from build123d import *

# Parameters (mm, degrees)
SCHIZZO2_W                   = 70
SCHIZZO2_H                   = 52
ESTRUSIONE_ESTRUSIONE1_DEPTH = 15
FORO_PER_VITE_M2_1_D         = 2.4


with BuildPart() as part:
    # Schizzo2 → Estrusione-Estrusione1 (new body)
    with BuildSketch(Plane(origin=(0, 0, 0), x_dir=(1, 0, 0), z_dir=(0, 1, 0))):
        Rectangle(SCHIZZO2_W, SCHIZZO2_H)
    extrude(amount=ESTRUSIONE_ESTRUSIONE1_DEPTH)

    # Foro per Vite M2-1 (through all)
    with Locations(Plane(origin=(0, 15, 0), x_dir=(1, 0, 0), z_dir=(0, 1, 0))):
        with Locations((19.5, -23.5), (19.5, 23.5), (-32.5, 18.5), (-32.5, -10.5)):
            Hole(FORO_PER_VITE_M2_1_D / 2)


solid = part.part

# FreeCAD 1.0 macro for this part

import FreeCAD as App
import Part
import Sketcher
Q = App.Units.Quantity


def add_polygon(sketch, points):
    """Adds a closed chain of lines whose ends are joined by coincident constraints."""
    first, n = sketch.GeometryCount, len(points)
    for a, b in zip(points, points[1:] + points[:1]):
        sketch.addGeometry(Part.LineSegment(App.Vector(*a, 0), App.Vector(*b, 0)), False)
    for i in range(n):
        sketch.addConstraint(Sketcher.Constraint("Coincident", first + i, 2, first + (i + 1) % n, 1))

doc = App.newDocument("Part")
body = doc.addObject("PartDesign::Body", "Body")

sketch1 = body.newObject("Sketcher::SketchObject", "Sketch")
sketch1.AttachmentSupport = (doc.getObject("XZ_Plane"), [""])
sketch1.MapMode = "FlatFace"
add_polygon(sketch1, [(-35, -26), (-35, 26), (35, 26), (35, -26)])
sketch1.addConstraint([
    Sketcher.Constraint("Vertical", 0),
    Sketcher.Constraint("Horizontal", 1),
    Sketcher.Constraint("Vertical", 2),
    Sketcher.Constraint("Horizontal", 3),
    Sketcher.Constraint("Symmetric", 0, 2, 2, 2, -1, 1),
    Sketcher.Constraint("DistanceX", 1, 1, 1, 2, Q("70 mm")),
    Sketcher.Constraint("DistanceY", 0, 1, 0, 2, Q("52 mm")),
])
pad1 = body.newObject("PartDesign::Pad", "Pad")
pad1.Profile = sketch1
pad1.Length = 15
pad1.Reversed = True

sketch2 = body.newObject("Sketcher::SketchObject", "Sketch001")
sketch2.AttachmentSupport = (doc.getObject("XZ_Plane"), [""])
sketch2.MapMode = "FlatFace"
sketch2.AttachmentOffset = App.Placement(App.Vector(0, 0, -15), App.Rotation())
sketch2.addGeometry([
    Part.Circle(App.Vector(19.5, 23.5, 0), App.Vector(0, 0, 1), 1.2),
    Part.Circle(App.Vector(19.5, -23.5, 0), App.Vector(0, 0, 1), 1.2),
    Part.Circle(App.Vector(-32.5, -18.5, 0), App.Vector(0, 0, 1), 1.2),
    Part.Circle(App.Vector(-32.5, 10.5, 0), App.Vector(0, 0, 1), 1.2),
], False)
sketch2.addConstraint([
    Sketcher.Constraint("Equal", 0, 1),
    Sketcher.Constraint("Equal", 1, 2),
    Sketcher.Constraint("Equal", 2, 3),
    Sketcher.Constraint("Symmetric", 0, 3, 1, 3, -1),
    Sketcher.Constraint("Vertical", 2, 3, 3, 3),
    Sketcher.Constraint("Diameter", 0, Q("2.4 mm")),
    Sketcher.Constraint("DistanceY", 1, 3, 0, 3, Q("47 mm")),
    Sketcher.Constraint("DistanceX", 2, 3, 1, 3, Q("52 mm")),
    Sketcher.Constraint("DistanceY", 1, 3, 2, 3, Q("5 mm")),
    Sketcher.Constraint("DistanceY", 2, 3, 3, 3, Q("29 mm")),
    Sketcher.Constraint("DistanceX", -1, 1, 0, 3, Q("19.5 mm")),
])
doc.recompute()
hole = body.newObject("PartDesign::Hole", "Hole")
hole.Profile = sketch2
hole.ThreadType = "None"
hole.Diameter = 2.4
hole.DepthType = "ThroughAll"
hole.Reversed = True

doc.recompute()
